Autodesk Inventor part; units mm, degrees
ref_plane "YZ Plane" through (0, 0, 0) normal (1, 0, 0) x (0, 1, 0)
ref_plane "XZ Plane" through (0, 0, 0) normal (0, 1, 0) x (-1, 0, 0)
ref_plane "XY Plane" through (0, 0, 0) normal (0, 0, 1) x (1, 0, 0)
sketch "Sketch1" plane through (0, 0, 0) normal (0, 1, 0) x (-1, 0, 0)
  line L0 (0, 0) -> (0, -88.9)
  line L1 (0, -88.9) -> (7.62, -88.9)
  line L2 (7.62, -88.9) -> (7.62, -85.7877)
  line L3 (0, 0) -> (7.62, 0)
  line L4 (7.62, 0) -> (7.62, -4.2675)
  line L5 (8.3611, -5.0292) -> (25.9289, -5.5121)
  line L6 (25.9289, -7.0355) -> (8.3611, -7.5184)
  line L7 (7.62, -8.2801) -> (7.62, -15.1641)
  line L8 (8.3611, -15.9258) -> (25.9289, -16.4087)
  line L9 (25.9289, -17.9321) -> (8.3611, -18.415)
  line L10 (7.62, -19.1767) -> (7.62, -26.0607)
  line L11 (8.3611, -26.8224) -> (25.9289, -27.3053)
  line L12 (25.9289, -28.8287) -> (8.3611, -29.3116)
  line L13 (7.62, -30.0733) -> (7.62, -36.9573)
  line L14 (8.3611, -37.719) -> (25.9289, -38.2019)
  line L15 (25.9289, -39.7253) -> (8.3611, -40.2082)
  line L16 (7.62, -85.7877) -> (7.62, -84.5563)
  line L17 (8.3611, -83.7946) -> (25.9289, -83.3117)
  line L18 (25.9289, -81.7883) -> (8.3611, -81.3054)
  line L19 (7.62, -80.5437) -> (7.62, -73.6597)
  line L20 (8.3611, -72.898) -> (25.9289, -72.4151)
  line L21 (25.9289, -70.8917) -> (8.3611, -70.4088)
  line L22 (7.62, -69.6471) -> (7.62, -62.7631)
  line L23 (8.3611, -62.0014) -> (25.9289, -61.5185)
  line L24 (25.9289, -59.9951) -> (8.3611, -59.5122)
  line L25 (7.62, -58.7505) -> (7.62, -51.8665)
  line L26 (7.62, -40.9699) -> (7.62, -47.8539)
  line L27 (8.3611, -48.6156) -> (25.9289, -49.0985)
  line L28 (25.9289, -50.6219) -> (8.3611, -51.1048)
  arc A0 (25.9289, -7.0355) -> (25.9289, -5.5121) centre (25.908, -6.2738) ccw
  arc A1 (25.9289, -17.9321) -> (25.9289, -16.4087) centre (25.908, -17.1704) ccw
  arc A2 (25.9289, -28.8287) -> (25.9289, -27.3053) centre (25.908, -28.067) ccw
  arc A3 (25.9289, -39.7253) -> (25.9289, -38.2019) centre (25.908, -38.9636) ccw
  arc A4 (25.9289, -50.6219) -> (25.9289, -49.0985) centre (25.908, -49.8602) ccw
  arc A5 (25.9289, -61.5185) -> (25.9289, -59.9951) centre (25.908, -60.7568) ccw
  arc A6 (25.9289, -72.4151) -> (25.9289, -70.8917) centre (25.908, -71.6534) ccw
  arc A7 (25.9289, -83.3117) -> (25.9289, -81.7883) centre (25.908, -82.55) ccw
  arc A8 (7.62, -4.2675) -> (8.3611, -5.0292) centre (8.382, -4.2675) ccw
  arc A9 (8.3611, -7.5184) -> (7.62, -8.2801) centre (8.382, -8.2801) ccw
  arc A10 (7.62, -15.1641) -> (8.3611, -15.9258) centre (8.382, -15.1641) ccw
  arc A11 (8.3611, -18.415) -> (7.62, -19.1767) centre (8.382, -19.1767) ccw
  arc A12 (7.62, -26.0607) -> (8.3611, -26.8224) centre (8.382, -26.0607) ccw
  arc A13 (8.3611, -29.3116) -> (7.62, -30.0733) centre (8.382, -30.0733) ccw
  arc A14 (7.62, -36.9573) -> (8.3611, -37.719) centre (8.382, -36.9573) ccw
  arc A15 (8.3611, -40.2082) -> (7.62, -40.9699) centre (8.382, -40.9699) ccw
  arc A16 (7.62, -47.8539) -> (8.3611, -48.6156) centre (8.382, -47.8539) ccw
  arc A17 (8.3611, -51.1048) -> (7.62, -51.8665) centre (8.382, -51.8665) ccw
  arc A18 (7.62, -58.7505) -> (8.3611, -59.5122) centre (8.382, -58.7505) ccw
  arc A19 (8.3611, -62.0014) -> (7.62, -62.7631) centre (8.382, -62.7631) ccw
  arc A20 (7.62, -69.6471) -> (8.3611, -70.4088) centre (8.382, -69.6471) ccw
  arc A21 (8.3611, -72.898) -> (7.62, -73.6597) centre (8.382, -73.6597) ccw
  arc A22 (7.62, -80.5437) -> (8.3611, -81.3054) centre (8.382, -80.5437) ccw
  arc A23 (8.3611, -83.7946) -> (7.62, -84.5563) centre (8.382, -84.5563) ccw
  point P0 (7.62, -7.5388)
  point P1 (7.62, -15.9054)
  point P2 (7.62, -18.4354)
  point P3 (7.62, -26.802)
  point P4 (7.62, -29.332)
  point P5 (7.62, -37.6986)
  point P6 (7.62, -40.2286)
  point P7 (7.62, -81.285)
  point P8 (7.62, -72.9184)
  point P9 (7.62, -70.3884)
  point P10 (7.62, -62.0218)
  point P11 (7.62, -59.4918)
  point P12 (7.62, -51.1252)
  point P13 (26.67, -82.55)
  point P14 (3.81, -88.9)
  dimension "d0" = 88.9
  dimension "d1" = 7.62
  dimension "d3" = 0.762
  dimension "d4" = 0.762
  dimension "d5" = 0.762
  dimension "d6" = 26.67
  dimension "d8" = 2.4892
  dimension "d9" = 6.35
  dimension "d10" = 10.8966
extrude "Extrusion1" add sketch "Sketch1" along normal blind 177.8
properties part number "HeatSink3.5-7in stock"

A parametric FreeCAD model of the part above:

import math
import FreeCAD as App
import Part
import Sketcher

V = App.Vector
Q = App.Units.Quantity

doc = App.newDocument("Part")
body = doc.addObject("PartDesign::Body", "Body")

# Sketch on XZ plane
sketch1 = body.newObject("Sketcher::SketchObject", "Sketch")
sketch1.AttachmentSupport = (doc.getObject("XZ_Plane"), [""])
sketch1.MapMode = "FlatFace"
sketch1.addGeometry([
    Part.LineSegment(V(-7.62, 0, 0), V(0, 0, 0)),  # 0
    Part.LineSegment(V(0, 0, 0), V(0, -88.9, 0)),  # 1
    Part.LineSegment(V(0, -88.9, 0), V(-7.62, -88.9, 0)),  # 2
    Part.LineSegment(V(-7.62, -88.9, 0), V(-7.62, -84.5563, 0)),  # 3
    Part.ArcOfCircle(Part.Circle(V(-8.382, -84.5563, 0), V(0, 0, 1), 0.761987), math.radians(0), math.radians(88.428277)),  # 4
    Part.LineSegment(V(-8.3611, -83.7946, 0), V(-25.9289, -83.3117, 0)),  # 5
    Part.ArcOfCircle(Part.Circle(V(-25.908, -82.55, 0), V(0, 0, 1), 0.761987), math.radians(91.571723), math.radians(268.428277)),  # 6
    Part.LineSegment(V(-25.9289, -81.7883, 0), V(-8.3611, -81.3054, 0)),  # 7
    Part.ArcOfCircle(Part.Circle(V(-8.382, -80.5437, 0), V(0, 0, 1), 0.762), math.radians(-88.428277), math.radians(0)),  # 8
    Part.LineSegment(V(-7.62, -80.5437, 0), V(-7.62, -73.6597, 0)),  # 9
    Part.ArcOfCircle(Part.Circle(V(-8.382, -73.6597, 0), V(0, 0, 1), 0.761987), math.radians(0), math.radians(88.428277)),  # 10
    Part.LineSegment(V(-8.3611, -72.898, 0), V(-25.9289, -72.4151, 0)),  # 11
    Part.ArcOfCircle(Part.Circle(V(-25.908, -71.6534, 0), V(0, 0, 1), 0.761987), math.radians(91.571723), math.radians(268.428277)),  # 12
    Part.LineSegment(V(-25.9289, -70.8917, 0), V(-8.3611, -70.4088, 0)),  # 13
    Part.ArcOfCircle(Part.Circle(V(-8.382, -69.6471, 0), V(0, 0, 1), 0.762), math.radians(-88.428277), math.radians(0)),  # 14
    Part.LineSegment(V(-7.62, -69.6471, 0), V(-7.62, -62.7631, 0)),  # 15
    Part.ArcOfCircle(Part.Circle(V(-8.382, -62.7631, 0), V(0, 0, 1), 0.761987), math.radians(0), math.radians(88.428277)),  # 16
    Part.LineSegment(V(-8.3611, -62.0014, 0), V(-25.9289, -61.5185, 0)),  # 17
    Part.ArcOfCircle(Part.Circle(V(-25.908, -60.7568, 0), V(0, 0, 1), 0.761987), math.radians(91.571723), math.radians(268.428277)),  # 18
    Part.LineSegment(V(-25.9289, -59.9951, 0), V(-8.3611, -59.5122, 0)),  # 19
    Part.ArcOfCircle(Part.Circle(V(-8.382, -58.7505, 0), V(0, 0, 1), 0.762), math.radians(-88.428277), math.radians(0)),  # 20
    Part.LineSegment(V(-7.62, -58.7505, 0), V(-7.62, -51.8665, 0)),  # 21
    Part.ArcOfCircle(Part.Circle(V(-8.382, -51.8665, 0), V(0, 0, 1), 0.761987), math.radians(0), math.radians(88.428277)),  # 22
    Part.LineSegment(V(-8.3611, -51.1048, 0), V(-25.9289, -50.6219, 0)),  # 23
    Part.ArcOfCircle(Part.Circle(V(-25.908, -49.8602, 0), V(0, 0, 1), 0.761987), math.radians(91.571723), math.radians(268.428277)),  # 24
    Part.LineSegment(V(-25.9289, -49.0985, 0), V(-8.3611, -48.6156, 0)),  # 25
    Part.ArcOfCircle(Part.Circle(V(-8.382, -47.8539, 0), V(0, 0, 1), 0.762), math.radians(-88.428277), math.radians(0)),  # 26
    Part.LineSegment(V(-7.62, -47.8539, 0), V(-7.62, -40.9699, 0)),  # 27
    Part.ArcOfCircle(Part.Circle(V(-8.382, -40.9699, 0), V(0, 0, 1), 0.761987), math.radians(0), math.radians(88.428277)),  # 28
    Part.LineSegment(V(-8.3611, -40.2082, 0), V(-25.9289, -39.7253, 0)),  # 29
    Part.ArcOfCircle(Part.Circle(V(-25.908, -38.9636, 0), V(0, 0, 1), 0.761987), math.radians(91.571723), math.radians(268.428277)),  # 30
    Part.LineSegment(V(-25.9289, -38.2019, 0), V(-8.3611, -37.719, 0)),  # 31
    Part.ArcOfCircle(Part.Circle(V(-8.382, -36.9573, 0), V(0, 0, 1), 0.762), math.radians(-88.428277), math.radians(0)),  # 32
    Part.LineSegment(V(-7.62, -36.9573, 0), V(-7.62, -30.0733, 0)),  # 33
    Part.ArcOfCircle(Part.Circle(V(-8.382, -30.0733, 0), V(0, 0, 1), 0.761987), math.radians(0), math.radians(88.428277)),  # 34
    Part.LineSegment(V(-8.3611, -29.3116, 0), V(-25.9289, -28.8287, 0)),  # 35
    Part.ArcOfCircle(Part.Circle(V(-25.908, -28.067, 0), V(0, 0, 1), 0.761987), math.radians(91.571723), math.radians(268.428277)),  # 36
    Part.LineSegment(V(-25.9289, -27.3053, 0), V(-8.3611, -26.8224, 0)),  # 37
    Part.ArcOfCircle(Part.Circle(V(-8.382, -26.0607, 0), V(0, 0, 1), 0.762), math.radians(-88.428277), math.radians(0)),  # 38
    Part.LineSegment(V(-7.62, -26.0607, 0), V(-7.62, -19.1767, 0)),  # 39
    Part.ArcOfCircle(Part.Circle(V(-8.382, -19.1767, 0), V(0, 0, 1), 0.761987), math.radians(0), math.radians(88.428277)),  # 40
    Part.LineSegment(V(-8.3611, -18.415, 0), V(-25.9289, -17.9321, 0)),  # 41
    Part.ArcOfCircle(Part.Circle(V(-25.908, -17.1704, 0), V(0, 0, 1), 0.761987), math.radians(91.571723), math.radians(268.428277)),  # 42
    Part.LineSegment(V(-25.9289, -16.4087, 0), V(-8.3611, -15.9258, 0)),  # 43
    Part.ArcOfCircle(Part.Circle(V(-8.382, -15.1641, 0), V(0, 0, 1), 0.762), math.radians(-88.428277), math.radians(0)),  # 44
    Part.LineSegment(V(-7.62, -15.1641, 0), V(-7.62, -8.2801, 0)),  # 45
    Part.ArcOfCircle(Part.Circle(V(-8.382, -8.2801, 0), V(0, 0, 1), 0.761987), math.radians(0), math.radians(88.428277)),  # 46
    Part.LineSegment(V(-8.3611, -7.5184, 0), V(-25.9289, -7.0355, 0)),  # 47
    Part.ArcOfCircle(Part.Circle(V(-25.908, -6.2738, 0), V(0, 0, 1), 0.761987), math.radians(91.571723), math.radians(268.428277)),  # 48
    Part.LineSegment(V(-25.9289, -5.5121, 0), V(-8.3611, -5.0292, 0)),  # 49
    Part.ArcOfCircle(Part.Circle(V(-8.382, -4.2675, 0), V(0, 0, 1), 0.762), math.radians(-88.428277), math.radians(0)),  # 50
    Part.LineSegment(V(-7.62, -4.2675, 0), V(-7.62, 0, 0)),  # 51
], False)
sketch1.addConstraint([
    Sketcher.Constraint("Coincident", 0, 2, 1, 1),
    Sketcher.Constraint("Coincident", 1, 2, 2, 1),
    Sketcher.Constraint("Coincident", 2, 2, 3, 1),
    Sketcher.Constraint("Tangent", 3, 2, 4, 1),
    Sketcher.Constraint("Tangent", 4, 2, 5, 1),
    Sketcher.Constraint("Tangent", 5, 2, 6, 2),
    Sketcher.Constraint("Tangent", 6, 1, 7, 1),
    Sketcher.Constraint("Tangent", 7, 2, 8, 1),
    Sketcher.Constraint("Tangent", 8, 2, 9, 1),
    Sketcher.Constraint("Tangent", 9, 2, 10, 1),
    Sketcher.Constraint("Tangent", 10, 2, 11, 1),
    Sketcher.Constraint("Tangent", 11, 2, 12, 2),
    Sketcher.Constraint("Tangent", 12, 1, 13, 1),
    Sketcher.Constraint("Tangent", 13, 2, 14, 1),
    Sketcher.Constraint("Tangent", 14, 2, 15, 1),
    Sketcher.Constraint("Tangent", 15, 2, 16, 1),
    Sketcher.Constraint("Tangent", 16, 2, 17, 1),
    Sketcher.Constraint("Tangent", 17, 2, 18, 2),
    Sketcher.Constraint("Tangent", 18, 1, 19, 1),
    Sketcher.Constraint("Tangent", 19, 2, 20, 1),
    Sketcher.Constraint("Tangent", 20, 2, 21, 1),
    Sketcher.Constraint("Tangent", 21, 2, 22, 1),
    Sketcher.Constraint("Tangent", 22, 2, 23, 1),
    Sketcher.Constraint("Tangent", 23, 2, 24, 2),
    Sketcher.Constraint("Tangent", 24, 1, 25, 1),
    Sketcher.Constraint("Tangent", 25, 2, 26, 1),
    Sketcher.Constraint("Tangent", 26, 2, 27, 1),
    Sketcher.Constraint("Tangent", 27, 2, 28, 1),
    Sketcher.Constraint("Tangent", 28, 2, 29, 1),
    Sketcher.Constraint("Tangent", 29, 2, 30, 2),
    Sketcher.Constraint("Tangent", 30, 1, 31, 1),
    Sketcher.Constraint("Tangent", 31, 2, 32, 1),
    Sketcher.Constraint("Tangent", 32, 2, 33, 1),
    Sketcher.Constraint("Tangent", 33, 2, 34, 1),
    Sketcher.Constraint("Tangent", 34, 2, 35, 1),
    Sketcher.Constraint("Tangent", 35, 2, 36, 2),
    Sketcher.Constraint("Tangent", 36, 1, 37, 1),
    Sketcher.Constraint("Tangent", 37, 2, 38, 1),
    Sketcher.Constraint("Tangent", 38, 2, 39, 1),
    Sketcher.Constraint("Tangent", 39, 2, 40, 1),
    Sketcher.Constraint("Tangent", 40, 2, 41, 1),
    Sketcher.Constraint("Tangent", 41, 2, 42, 2),
    Sketcher.Constraint("Tangent", 42, 1, 43, 1),
    Sketcher.Constraint("Tangent", 43, 2, 44, 1),
    Sketcher.Constraint("Tangent", 44, 2, 45, 1),
    Sketcher.Constraint("Tangent", 45, 2, 46, 1),
    Sketcher.Constraint("Tangent", 46, 2, 47, 1),
    Sketcher.Constraint("Tangent", 47, 2, 48, 2),
    Sketcher.Constraint("Tangent", 48, 1, 49, 1),
    Sketcher.Constraint("Tangent", 49, 2, 50, 1),
    Sketcher.Constraint("Tangent", 50, 2, 51, 1),
    Sketcher.Constraint("Coincident", 51, 2, 0, 1),
    Sketcher.Constraint("Horizontal", 0),
    Sketcher.Constraint("Vertical", 1),
    Sketcher.Constraint("Horizontal", 2),
    Sketcher.Constraint("Vertical", 3),
    Sketcher.Constraint("Vertical", 9),
    Sketcher.Constraint("Vertical", 15),
    Sketcher.Constraint("Vertical", 21),
    Sketcher.Constraint("Vertical", 27),
    Sketcher.Constraint("Vertical", 33),
    Sketcher.Constraint("Vertical", 39),
    Sketcher.Constraint("Vertical", 45),
    Sketcher.Constraint("Vertical", 51),
    Sketcher.Constraint("Coincident", 0, 2, -1, 1),
    Sketcher.Constraint("Equal", 4, 6),
    Sketcher.Constraint("Equal", 6, 8),
    Sketcher.Constraint("Equal", 8, 10),
    Sketcher.Constraint("Equal", 10, 12),
    Sketcher.Constraint("Equal", 12, 14),
    Sketcher.Constraint("Equal", 14, 16),
    Sketcher.Constraint("Equal", 16, 18),
    Sketcher.Constraint("Equal", 18, 20),
    Sketcher.Constraint("Equal", 20, 22),
    Sketcher.Constraint("Equal", 22, 24),
    Sketcher.Constraint("Equal", 24, 26),
    Sketcher.Constraint("Equal", 26, 28),
    Sketcher.Constraint("Equal", 28, 30),
    Sketcher.Constraint("Equal", 30, 32),
    Sketcher.Constraint("Equal", 32, 34),
    Sketcher.Constraint("Equal", 34, 36),
    Sketcher.Constraint("Equal", 36, 38),
    Sketcher.Constraint("Equal", 38, 40),
    Sketcher.Constraint("Equal", 40, 42),
    Sketcher.Constraint("Equal", 42, 44),
    Sketcher.Constraint("Equal", 44, 46),
    Sketcher.Constraint("Equal", 46, 48),
    Sketcher.Constraint("Equal", 48, 50),
    Sketcher.Constraint("Parallel", 5, 11),
    Sketcher.Constraint("Parallel", 7, 13),
    Sketcher.Constraint("Parallel", 11, 17),
    Sketcher.Constraint("Parallel", 13, 19),
    Sketcher.Constraint("Parallel", 17, 23),
    Sketcher.Constraint("Parallel", 19, 25),
    Sketcher.Constraint("Parallel", 23, 29),
    Sketcher.Constraint("Parallel", 25, 31),
    Sketcher.Constraint("Parallel", 29, 35),
    Sketcher.Constraint("Parallel", 31, 37),
    Sketcher.Constraint("Parallel", 35, 41),
    Sketcher.Constraint("Parallel", 37, 43),
    Sketcher.Constraint("Parallel", 41, 47),
    Sketcher.Constraint("Parallel", 43, 49),
    Sketcher.Constraint("Vertical", 4, 3, 8, 3),
    Sketcher.Constraint("Vertical", 6, 3, 12, 3),
    Sketcher.Constraint("Vertical", 10, 3, 14, 3),
    Sketcher.Constraint("Vertical", 12, 3, 18, 3),
    Sketcher.Constraint("Vertical", 16, 3, 20, 3),
    Sketcher.Constraint("Vertical", 18, 3, 24, 3),
    Sketcher.Constraint("Vertical", 22, 3, 26, 3),
    Sketcher.Constraint("Vertical", 24, 3, 30, 3),
    Sketcher.Constraint("Vertical", 28, 3, 32, 3),
    Sketcher.Constraint("Vertical", 30, 3, 36, 3),
    Sketcher.Constraint("Vertical", 34, 3, 38, 3),
    Sketcher.Constraint("Vertical", 36, 3, 42, 3),
    Sketcher.Constraint("Vertical", 40, 3, 44, 3),
    Sketcher.Constraint("Vertical", 42, 3, 48, 3),
    Sketcher.Constraint("Vertical", 46, 3, 50, 3),
    Sketcher.Constraint("Vertical", 5, 2, 6, 1),
    Sketcher.Constraint("Equal", 9, 15),
    Sketcher.Constraint("Equal", 15, 21),
    Sketcher.Constraint("Equal", 21, 27),
    Sketcher.Constraint("Equal", 27, 33),
    Sketcher.Constraint("Equal", 33, 39),
    Sketcher.Constraint("Equal", 39, 45),
    Sketcher.Constraint("Radius", 4, Q("0.03 in")),
    Sketcher.Constraint("DistanceX", 0, 1, 0, 2, Q("0.3 in")),
    Sketcher.Constraint("DistanceY", 1, 2, 1, 1, Q("3.5 in")),
    Sketcher.Constraint("DistanceY", 10, 3, -1, 1, Q("2.9 in")),
    Sketcher.Constraint("DistanceY", 3, 1, 3, 2, Q("0.171 in")),
    Sketcher.Constraint("DistanceY", 51, 1, 51, 2, Q("0.168 in")),
    Sketcher.Constraint("DistanceX", 6, 3, -1, 1, Q("1.02 in")),
])
pad1 = body.newObject("PartDesign::Pad", "Pad")
pad1.Profile = sketch1
pad1.Length = Q("7 in")
pad1.Reversed = True

doc.recompute()
